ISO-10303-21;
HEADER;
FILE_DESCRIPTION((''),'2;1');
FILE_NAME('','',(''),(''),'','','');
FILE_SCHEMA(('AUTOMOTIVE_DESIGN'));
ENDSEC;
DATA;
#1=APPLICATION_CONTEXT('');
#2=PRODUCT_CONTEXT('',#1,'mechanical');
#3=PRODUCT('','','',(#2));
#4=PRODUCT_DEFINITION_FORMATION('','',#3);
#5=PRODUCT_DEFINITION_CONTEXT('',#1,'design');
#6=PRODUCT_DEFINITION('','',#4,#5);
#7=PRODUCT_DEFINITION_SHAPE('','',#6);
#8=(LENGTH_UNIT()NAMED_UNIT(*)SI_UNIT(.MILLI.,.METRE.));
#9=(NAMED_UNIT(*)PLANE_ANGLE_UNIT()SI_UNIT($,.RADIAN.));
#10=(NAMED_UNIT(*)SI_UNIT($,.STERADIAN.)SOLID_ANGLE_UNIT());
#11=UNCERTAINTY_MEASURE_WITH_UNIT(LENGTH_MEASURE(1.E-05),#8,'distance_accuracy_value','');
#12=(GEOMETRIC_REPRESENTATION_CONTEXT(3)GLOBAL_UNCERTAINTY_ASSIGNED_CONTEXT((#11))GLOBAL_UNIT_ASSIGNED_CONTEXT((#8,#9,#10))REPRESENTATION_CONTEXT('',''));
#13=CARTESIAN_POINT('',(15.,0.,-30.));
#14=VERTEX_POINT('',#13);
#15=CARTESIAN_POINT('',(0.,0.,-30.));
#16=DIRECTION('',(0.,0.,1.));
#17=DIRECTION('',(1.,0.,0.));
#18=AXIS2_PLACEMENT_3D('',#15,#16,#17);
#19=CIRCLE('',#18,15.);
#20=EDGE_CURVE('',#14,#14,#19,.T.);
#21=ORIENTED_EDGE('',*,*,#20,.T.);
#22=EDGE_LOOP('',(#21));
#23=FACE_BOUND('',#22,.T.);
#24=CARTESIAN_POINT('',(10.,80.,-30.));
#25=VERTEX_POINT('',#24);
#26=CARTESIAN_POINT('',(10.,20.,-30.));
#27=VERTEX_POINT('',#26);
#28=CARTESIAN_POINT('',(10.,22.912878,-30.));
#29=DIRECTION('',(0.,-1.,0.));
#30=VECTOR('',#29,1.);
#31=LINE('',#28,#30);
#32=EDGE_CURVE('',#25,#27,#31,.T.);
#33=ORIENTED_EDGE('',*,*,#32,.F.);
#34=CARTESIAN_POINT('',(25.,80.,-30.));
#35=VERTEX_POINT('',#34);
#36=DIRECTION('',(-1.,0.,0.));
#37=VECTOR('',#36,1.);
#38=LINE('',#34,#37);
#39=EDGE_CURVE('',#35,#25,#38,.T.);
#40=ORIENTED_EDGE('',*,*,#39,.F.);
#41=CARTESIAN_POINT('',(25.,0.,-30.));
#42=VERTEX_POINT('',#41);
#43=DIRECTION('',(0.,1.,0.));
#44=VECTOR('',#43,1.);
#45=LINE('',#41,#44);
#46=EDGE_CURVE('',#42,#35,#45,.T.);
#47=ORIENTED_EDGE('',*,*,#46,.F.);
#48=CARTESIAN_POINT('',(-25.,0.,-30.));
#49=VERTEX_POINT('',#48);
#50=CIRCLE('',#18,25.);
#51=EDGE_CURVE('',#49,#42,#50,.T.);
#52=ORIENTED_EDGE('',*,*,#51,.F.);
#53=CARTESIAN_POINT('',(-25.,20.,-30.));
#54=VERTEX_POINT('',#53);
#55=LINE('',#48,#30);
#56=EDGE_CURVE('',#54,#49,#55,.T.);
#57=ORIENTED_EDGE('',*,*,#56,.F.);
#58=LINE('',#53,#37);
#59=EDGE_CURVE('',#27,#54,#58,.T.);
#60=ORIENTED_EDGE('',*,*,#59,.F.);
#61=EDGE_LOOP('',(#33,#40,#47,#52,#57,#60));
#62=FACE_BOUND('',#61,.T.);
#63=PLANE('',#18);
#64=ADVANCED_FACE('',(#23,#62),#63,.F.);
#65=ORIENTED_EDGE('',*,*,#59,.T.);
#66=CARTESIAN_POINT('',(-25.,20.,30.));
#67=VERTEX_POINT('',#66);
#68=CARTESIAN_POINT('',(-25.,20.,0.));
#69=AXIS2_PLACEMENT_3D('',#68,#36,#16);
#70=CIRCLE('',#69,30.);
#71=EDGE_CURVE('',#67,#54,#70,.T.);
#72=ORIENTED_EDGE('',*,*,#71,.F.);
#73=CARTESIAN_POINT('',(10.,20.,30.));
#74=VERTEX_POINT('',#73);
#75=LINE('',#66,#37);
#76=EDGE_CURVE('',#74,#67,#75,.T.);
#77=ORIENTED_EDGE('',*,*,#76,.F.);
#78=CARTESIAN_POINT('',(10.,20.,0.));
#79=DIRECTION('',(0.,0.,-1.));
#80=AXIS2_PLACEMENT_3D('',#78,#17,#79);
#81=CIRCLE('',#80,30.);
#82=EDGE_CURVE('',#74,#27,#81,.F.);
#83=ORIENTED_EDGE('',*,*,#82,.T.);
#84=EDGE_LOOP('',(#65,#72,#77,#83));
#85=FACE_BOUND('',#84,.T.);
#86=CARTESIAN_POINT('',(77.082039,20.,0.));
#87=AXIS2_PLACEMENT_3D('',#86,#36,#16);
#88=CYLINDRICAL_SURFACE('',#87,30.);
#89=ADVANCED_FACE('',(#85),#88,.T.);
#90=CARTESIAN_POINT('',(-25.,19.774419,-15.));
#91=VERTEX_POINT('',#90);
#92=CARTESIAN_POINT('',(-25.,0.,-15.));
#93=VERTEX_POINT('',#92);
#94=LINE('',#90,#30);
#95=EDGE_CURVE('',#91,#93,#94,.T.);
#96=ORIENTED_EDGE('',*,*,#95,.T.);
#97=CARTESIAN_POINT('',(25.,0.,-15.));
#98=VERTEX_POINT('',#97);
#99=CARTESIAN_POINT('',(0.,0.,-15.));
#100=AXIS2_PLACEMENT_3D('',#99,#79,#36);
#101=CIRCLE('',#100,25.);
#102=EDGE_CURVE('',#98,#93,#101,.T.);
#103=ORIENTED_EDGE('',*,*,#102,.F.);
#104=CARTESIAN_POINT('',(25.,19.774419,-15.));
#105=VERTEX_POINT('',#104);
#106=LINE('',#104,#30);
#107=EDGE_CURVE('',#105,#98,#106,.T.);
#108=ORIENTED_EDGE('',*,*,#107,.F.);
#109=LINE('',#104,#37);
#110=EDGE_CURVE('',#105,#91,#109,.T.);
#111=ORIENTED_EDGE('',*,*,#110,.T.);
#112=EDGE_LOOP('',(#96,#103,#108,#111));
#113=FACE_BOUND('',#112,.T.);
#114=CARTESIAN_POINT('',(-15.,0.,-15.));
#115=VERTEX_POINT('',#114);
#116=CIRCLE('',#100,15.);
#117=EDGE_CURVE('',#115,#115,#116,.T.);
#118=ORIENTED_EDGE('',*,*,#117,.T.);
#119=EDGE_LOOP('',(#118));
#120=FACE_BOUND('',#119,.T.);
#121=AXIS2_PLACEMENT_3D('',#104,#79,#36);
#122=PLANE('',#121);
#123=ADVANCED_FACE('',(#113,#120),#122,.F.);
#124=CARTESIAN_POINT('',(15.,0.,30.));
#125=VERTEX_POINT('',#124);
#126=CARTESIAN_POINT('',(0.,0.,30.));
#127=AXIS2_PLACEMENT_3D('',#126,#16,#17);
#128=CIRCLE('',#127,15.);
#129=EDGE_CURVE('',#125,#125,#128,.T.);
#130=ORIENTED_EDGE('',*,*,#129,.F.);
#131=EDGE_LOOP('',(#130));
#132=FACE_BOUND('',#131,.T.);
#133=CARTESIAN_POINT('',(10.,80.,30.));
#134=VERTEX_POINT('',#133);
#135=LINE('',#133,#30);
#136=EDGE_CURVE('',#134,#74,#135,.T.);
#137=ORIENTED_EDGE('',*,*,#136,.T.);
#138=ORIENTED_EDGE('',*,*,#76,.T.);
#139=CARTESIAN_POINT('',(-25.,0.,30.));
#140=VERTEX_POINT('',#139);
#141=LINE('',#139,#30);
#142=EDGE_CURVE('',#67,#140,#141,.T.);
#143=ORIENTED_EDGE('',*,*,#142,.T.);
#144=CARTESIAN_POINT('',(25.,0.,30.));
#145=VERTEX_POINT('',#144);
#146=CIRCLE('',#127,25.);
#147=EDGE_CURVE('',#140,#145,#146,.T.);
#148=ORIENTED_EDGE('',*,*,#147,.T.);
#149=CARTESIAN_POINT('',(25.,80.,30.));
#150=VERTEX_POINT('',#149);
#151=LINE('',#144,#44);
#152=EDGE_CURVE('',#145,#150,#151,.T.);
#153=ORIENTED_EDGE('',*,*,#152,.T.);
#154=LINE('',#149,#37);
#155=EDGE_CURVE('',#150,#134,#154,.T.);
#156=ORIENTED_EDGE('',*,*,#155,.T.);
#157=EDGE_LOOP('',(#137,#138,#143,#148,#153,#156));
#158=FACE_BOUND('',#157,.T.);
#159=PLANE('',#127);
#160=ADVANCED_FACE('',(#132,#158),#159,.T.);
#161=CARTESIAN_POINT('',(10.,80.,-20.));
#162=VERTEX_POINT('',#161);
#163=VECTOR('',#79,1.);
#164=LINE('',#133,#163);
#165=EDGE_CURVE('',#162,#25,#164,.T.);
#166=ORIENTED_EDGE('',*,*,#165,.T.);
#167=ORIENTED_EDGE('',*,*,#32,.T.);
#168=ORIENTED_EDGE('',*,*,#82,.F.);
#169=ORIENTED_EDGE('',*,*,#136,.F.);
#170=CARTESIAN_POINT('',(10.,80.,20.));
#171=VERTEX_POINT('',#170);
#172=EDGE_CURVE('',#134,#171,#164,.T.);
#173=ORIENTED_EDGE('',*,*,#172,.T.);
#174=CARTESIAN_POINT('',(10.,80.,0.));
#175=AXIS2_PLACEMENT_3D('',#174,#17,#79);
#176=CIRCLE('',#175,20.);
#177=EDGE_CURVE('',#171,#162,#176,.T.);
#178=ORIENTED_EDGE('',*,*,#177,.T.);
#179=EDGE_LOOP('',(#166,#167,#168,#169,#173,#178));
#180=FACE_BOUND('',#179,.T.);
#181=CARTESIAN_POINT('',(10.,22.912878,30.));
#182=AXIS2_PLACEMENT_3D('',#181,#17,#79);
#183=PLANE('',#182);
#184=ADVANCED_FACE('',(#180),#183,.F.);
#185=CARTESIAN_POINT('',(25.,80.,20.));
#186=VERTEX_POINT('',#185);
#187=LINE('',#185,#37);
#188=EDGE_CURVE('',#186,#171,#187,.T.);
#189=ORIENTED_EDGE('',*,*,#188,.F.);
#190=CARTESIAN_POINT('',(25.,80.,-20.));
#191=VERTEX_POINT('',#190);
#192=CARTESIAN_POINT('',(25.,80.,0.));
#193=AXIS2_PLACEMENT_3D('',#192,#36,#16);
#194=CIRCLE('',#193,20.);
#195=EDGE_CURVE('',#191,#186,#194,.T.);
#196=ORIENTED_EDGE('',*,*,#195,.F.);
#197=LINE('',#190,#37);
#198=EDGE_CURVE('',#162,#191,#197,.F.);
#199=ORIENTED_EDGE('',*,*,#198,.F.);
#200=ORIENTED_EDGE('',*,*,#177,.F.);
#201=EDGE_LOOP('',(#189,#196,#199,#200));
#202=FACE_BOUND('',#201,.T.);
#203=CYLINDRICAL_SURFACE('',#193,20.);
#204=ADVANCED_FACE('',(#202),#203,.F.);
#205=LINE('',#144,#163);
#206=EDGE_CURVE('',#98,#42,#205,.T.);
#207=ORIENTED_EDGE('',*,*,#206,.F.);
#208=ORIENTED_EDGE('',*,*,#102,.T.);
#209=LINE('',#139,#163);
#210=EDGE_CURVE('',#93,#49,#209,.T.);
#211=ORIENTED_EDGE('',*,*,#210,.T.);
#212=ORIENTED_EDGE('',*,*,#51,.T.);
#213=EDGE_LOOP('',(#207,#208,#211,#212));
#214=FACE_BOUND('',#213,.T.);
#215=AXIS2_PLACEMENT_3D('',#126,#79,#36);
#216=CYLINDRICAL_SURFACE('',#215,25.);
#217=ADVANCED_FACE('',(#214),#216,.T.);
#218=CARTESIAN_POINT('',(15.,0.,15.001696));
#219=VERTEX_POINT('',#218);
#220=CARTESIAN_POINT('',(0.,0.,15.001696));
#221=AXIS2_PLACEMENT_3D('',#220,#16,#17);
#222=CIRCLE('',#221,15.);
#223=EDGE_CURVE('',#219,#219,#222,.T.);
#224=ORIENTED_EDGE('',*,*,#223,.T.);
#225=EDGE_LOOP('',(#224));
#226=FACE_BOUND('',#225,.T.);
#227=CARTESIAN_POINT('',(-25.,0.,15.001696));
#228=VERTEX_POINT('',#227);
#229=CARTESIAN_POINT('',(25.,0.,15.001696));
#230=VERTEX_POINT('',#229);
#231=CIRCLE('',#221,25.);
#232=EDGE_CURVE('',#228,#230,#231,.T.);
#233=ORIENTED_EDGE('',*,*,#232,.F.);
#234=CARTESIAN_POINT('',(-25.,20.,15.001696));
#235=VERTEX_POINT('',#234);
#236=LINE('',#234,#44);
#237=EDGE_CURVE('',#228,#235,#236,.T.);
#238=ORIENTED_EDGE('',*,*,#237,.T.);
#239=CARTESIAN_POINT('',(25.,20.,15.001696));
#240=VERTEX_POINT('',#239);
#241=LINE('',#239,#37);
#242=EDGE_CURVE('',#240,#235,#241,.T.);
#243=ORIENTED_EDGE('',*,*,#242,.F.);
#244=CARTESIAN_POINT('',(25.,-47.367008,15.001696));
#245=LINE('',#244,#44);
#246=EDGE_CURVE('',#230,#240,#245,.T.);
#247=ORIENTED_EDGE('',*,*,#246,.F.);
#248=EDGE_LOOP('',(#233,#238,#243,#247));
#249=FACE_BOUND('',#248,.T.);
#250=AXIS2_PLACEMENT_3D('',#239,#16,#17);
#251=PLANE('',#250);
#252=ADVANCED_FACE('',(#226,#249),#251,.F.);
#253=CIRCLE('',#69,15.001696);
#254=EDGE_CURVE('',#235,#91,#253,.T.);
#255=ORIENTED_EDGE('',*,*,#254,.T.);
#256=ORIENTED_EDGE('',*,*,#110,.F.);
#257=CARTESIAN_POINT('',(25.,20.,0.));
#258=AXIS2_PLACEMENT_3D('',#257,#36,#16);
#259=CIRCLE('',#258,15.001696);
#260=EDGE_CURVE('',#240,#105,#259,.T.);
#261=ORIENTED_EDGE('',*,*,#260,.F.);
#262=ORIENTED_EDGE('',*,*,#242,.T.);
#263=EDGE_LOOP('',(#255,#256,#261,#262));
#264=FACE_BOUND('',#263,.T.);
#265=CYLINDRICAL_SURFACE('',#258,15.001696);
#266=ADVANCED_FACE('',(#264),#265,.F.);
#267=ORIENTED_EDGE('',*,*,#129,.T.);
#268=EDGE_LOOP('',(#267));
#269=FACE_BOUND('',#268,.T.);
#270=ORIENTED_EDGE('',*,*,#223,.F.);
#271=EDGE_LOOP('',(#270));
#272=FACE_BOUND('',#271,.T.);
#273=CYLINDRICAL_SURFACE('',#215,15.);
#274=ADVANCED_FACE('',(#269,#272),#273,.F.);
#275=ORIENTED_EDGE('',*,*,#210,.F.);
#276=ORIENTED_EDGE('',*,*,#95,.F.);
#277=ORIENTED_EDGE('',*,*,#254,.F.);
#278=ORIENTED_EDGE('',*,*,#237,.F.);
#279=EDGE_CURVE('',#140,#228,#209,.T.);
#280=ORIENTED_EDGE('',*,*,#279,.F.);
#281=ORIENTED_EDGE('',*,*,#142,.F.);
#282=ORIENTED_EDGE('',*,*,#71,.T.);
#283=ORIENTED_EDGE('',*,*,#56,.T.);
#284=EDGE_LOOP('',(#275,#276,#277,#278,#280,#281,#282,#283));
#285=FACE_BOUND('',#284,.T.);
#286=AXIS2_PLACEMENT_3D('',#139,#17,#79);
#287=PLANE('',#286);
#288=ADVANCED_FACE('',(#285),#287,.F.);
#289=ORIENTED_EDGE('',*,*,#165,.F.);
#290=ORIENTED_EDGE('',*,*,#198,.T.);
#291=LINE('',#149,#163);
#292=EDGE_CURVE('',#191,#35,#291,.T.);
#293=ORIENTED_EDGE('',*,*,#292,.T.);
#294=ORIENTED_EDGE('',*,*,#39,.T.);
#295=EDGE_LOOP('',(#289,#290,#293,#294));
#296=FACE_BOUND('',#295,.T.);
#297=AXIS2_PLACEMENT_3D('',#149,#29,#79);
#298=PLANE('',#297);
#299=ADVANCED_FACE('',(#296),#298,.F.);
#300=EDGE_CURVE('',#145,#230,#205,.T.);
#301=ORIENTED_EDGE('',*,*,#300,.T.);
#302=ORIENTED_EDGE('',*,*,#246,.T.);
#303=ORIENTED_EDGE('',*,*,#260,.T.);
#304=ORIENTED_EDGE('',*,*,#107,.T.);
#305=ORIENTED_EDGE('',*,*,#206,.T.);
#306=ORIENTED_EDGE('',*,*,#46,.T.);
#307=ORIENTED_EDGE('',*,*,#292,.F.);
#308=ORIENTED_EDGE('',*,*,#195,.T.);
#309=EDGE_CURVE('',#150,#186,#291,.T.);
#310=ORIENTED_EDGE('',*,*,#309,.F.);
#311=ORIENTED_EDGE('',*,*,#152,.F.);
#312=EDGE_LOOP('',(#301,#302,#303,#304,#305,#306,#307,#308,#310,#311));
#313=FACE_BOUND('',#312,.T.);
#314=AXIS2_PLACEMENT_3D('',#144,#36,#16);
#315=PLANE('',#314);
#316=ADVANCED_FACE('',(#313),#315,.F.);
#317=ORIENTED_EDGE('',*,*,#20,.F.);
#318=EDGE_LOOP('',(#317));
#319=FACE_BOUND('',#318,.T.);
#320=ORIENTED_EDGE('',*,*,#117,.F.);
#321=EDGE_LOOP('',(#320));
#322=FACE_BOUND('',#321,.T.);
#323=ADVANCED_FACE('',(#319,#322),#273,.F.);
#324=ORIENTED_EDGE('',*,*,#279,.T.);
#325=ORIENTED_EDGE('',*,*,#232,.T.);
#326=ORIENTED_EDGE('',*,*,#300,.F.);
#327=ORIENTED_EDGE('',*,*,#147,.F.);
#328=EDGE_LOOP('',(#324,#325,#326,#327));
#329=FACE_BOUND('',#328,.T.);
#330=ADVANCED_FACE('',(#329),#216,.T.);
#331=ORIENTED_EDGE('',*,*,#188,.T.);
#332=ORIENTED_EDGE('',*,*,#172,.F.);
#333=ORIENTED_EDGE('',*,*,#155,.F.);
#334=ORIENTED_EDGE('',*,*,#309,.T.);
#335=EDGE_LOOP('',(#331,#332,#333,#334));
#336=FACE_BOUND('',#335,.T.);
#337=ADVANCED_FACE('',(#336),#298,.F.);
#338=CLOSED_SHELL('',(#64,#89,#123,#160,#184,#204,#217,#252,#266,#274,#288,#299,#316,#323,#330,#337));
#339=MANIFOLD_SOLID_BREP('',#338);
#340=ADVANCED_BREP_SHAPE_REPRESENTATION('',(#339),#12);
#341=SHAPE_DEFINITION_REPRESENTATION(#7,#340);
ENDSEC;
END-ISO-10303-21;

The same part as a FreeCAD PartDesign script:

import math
import FreeCAD as App
import Part
import Sketcher

V = App.Vector
Q = App.Units.Quantity

doc = App.newDocument("Part")
body = doc.addObject("PartDesign::Body", "Body")

# Sketch on XY plane
sketch1 = doc.addObject("Sketcher::SketchObject", "Sketch")
body.addObject(sketch1)
sketch1.AttachmentSupport = (doc.XY_Plane, [""])
sketch1.MapMode = "FlatFace"
sketch1.addGeometry(Part.LineSegment(V(25, 0, 0), V(25, 80, 0)), False)
sketch1.addGeometry(Part.LineSegment(V(25, 80, 0), V(10, 80, 0)), False)
sketch1.addGeometry(Part.LineSegment(V(10, 80, 0), V(10, 20, 0)), False)
sketch1.addGeometry(Part.LineSegment(V(10, 20, 0), V(-25, 20, 0)), False)
sketch1.addGeometry(Part.LineSegment(V(-25, 20, 0), V(-25, 0, 0)), False)
sketch1.addGeometry(Part.ArcOfCircle(Part.Circle(V(0, 0, 0), V(0, 0, 1), 25), math.radians(180), math.radians(360)), False)
sketch1.addGeometry(Part.Circle(V(0, 0, 0), V(0, 0, 1), 15), False)
sketch1.addConstraint(Sketcher.Constraint("Coincident", 0, 2, 1, 1))
sketch1.addConstraint(Sketcher.Constraint("Coincident", 1, 2, 2, 1))
sketch1.addConstraint(Sketcher.Constraint("Coincident", 2, 2, 3, 1))
sketch1.addConstraint(Sketcher.Constraint("Coincident", 3, 2, 4, 1))
sketch1.addConstraint(Sketcher.Constraint("Tangent", 4, 2, 5, 1))
sketch1.addConstraint(Sketcher.Constraint("Tangent", 5, 2, 0, 1))
sketch1.addConstraint(Sketcher.Constraint("Vertical", 0))
sketch1.addConstraint(Sketcher.Constraint("Horizontal", 1))
sketch1.addConstraint(Sketcher.Constraint("Vertical", 2))
sketch1.addConstraint(Sketcher.Constraint("Horizontal", 3))
sketch1.addConstraint(Sketcher.Constraint("Vertical", 4))
sketch1.addConstraint(Sketcher.Constraint("Coincident", 5, 3, -1, 1))
sketch1.addConstraint(Sketcher.Constraint("Coincident", 6, 3, -1, 1))
sketch1.addConstraint(Sketcher.Constraint("Diameter", 6, Q("30 mm")))
sketch1.addConstraint(Sketcher.Constraint("Radius", 5, Q("25 mm")))
sketch1.addConstraint(Sketcher.Constraint("DistanceX", 1, 2, 1, 1, Q("15 mm")))
sketch1.addConstraint(Sketcher.Constraint("DistanceY", 0, 1, 0, 2, Q("80 mm")))
sketch1.addConstraint(Sketcher.Constraint("DistanceY", 2, 2, 2, 1, Q("60 mm")))
pad1 = doc.addObject("PartDesign::Pad", "Pad")
body.addObject(pad1)
pad1.Profile = sketch1
pad1.Length = 60
pad1.Midplane = True

# Sketch on YZ plane
sketch2 = doc.addObject("Sketcher::SketchObject", "Sketch001")
body.addObject(sketch2)
sketch2.AttachmentSupport = (doc.YZ_Plane, [""])
sketch2.MapMode = "FlatFace"
sketch2.AttachmentOffset = App.Placement(V(0, 0, 10), App.Rotation())
sketch2.addGeometry(Part.Circle(V(80, 0, 0), V(0, 0, 1), 20), False)
sketch2.addConstraint(Sketcher.Constraint("PointOnObject", 0, 3, -1))
sketch2.addConstraint(Sketcher.Constraint("Diameter", 0, Q("40 mm")))
sketch2.addConstraint(Sketcher.Constraint("DistanceX", -1, 1, 0, 3, Q("80 mm")))
pocket1 = doc.addObject("PartDesign::Pocket", "Pocket")
body.addObject(pocket1)
pocket1.Profile = sketch2
pocket1.Type = "ThroughAll"
pocket1.Reversed = True

# Sketch on YZ plane
sketch3 = doc.addObject("Sketcher::SketchObject", "Sketch002")
body.addObject(sketch3)
sketch3.AttachmentSupport = (doc.YZ_Plane, [""])
sketch3.MapMode = "FlatFace"
sketch3.AttachmentOffset = App.Placement(V(0, 0, -25), App.Rotation())
sketch3.addGeometry(Part.LineSegment(V(20, -30, 0), V(20, -15, 0)), False)
sketch3.addGeometry(Part.ArcOfCircle(Part.Circle(V(20, 0, 0), V(0, 0, 1), 15), math.radians(-90), math.radians(90)), False)
sketch3.addGeometry(Part.LineSegment(V(20, 15, 0), V(20, 30, 0)), False)
sketch3.addGeometry(Part.ArcOfCircle(Part.Circle(V(20, 0, 0), V(0, 0, 1), 30), math.radians(-90), math.radians(90)), False)
sketch3.addConstraint(Sketcher.Constraint("Coincident", 0, 2, 1, 1))
sketch3.addConstraint(Sketcher.Constraint("Coincident", 1, 2, 2, 1))
sketch3.addConstraint(Sketcher.Constraint("Coincident", 2, 2, 3, 2))
sketch3.addConstraint(Sketcher.Constraint("Coincident", 3, 1, 0, 1))
sketch3.addConstraint(Sketcher.Constraint("Vertical", 0))
sketch3.addConstraint(Sketcher.Constraint("Vertical", 2))
sketch3.addConstraint(Sketcher.Constraint("Coincident", 3, 3, 1, 3))
sketch3.addConstraint(Sketcher.Constraint("Symmetric", 0, 2, 1, 2, -1))
sketch3.addConstraint(Sketcher.Constraint("Vertical", 3, 3, 0, 2))
sketch3.addConstraint(Sketcher.Constraint("Radius", 1, Q("15 mm")))
sketch3.addConstraint(Sketcher.Constraint("Radius", 3, Q("30 mm")))
sketch3.addConstraint(Sketcher.Constraint("DistanceX", -1, 1, 1, 3, Q("20 mm")))
pad2 = doc.addObject("PartDesign::Pad", "Pad001")
body.addObject(pad2)
pad2.Profile = sketch3
pad2.Length = 35

# Sketch on YZ plane
sketch4 = doc.addObject("Sketcher::SketchObject", "Sketch003")
body.addObject(sketch4)
sketch4.AttachmentSupport = (doc.YZ_Plane, [""])
sketch4.MapMode = "FlatFace"
sketch4.AttachmentOffset = App.Placement(V(0, 0, -25), App.Rotation())
sketch4.addGeometry(Part.LineSegment(V(20, -15, 0), V(-47, -15, 0)), False)
sketch4.addGeometry(Part.LineSegment(V(-47, -15, 0), V(-47, 15, 0)), False)
sketch4.addGeometry(Part.LineSegment(V(-47, 15, 0), V(20, 15, 0)), False)
sketch4.addGeometry(Part.ArcOfCircle(Part.Circle(V(20, 0, 0), V(0, 0, 1), 15), math.radians(-91), math.radians(90)), False)
sketch4.addConstraint(Sketcher.Constraint("Coincident", 0, 2, 1, 1))
sketch4.addConstraint(Sketcher.Constraint("Coincident", 1, 2, 2, 1))
sketch4.addConstraint(Sketcher.Constraint("Tangent", 2, 2, 3, 2))
sketch4.addConstraint(Sketcher.Constraint("Coincident", 3, 1, 0, 1))
sketch4.addConstraint(Sketcher.Constraint("Horizontal", 0))
sketch4.addConstraint(Sketcher.Constraint("Vertical", 1))
sketch4.addConstraint(Sketcher.Constraint("Horizontal", 2))
sketch4.addConstraint(Sketcher.Constraint("PointOnObject", 3, 3, -1))
sketch4.addConstraint(Sketcher.Constraint("DistanceX", -1, 1, 3, 3, Q("20 mm")))
sketch4.addConstraint(Sketcher.Constraint("DistanceY", 0, 2, -1, 1, Q("15 mm")))
sketch4.addConstraint(Sketcher.Constraint("Radius", 3, Q("15.001696 mm")))
sketch4.addConstraint(Sketcher.Constraint("DistanceX", 0, 2, 0, 1, Q("67.141427 mm")))
pocket2 = doc.addObject("PartDesign::Pocket", "Pocket001")
body.addObject(pocket2)
pocket2.Profile = sketch4
pocket2.Type = "ThroughAll"
pocket2.Reversed = True

doc.recompute()
